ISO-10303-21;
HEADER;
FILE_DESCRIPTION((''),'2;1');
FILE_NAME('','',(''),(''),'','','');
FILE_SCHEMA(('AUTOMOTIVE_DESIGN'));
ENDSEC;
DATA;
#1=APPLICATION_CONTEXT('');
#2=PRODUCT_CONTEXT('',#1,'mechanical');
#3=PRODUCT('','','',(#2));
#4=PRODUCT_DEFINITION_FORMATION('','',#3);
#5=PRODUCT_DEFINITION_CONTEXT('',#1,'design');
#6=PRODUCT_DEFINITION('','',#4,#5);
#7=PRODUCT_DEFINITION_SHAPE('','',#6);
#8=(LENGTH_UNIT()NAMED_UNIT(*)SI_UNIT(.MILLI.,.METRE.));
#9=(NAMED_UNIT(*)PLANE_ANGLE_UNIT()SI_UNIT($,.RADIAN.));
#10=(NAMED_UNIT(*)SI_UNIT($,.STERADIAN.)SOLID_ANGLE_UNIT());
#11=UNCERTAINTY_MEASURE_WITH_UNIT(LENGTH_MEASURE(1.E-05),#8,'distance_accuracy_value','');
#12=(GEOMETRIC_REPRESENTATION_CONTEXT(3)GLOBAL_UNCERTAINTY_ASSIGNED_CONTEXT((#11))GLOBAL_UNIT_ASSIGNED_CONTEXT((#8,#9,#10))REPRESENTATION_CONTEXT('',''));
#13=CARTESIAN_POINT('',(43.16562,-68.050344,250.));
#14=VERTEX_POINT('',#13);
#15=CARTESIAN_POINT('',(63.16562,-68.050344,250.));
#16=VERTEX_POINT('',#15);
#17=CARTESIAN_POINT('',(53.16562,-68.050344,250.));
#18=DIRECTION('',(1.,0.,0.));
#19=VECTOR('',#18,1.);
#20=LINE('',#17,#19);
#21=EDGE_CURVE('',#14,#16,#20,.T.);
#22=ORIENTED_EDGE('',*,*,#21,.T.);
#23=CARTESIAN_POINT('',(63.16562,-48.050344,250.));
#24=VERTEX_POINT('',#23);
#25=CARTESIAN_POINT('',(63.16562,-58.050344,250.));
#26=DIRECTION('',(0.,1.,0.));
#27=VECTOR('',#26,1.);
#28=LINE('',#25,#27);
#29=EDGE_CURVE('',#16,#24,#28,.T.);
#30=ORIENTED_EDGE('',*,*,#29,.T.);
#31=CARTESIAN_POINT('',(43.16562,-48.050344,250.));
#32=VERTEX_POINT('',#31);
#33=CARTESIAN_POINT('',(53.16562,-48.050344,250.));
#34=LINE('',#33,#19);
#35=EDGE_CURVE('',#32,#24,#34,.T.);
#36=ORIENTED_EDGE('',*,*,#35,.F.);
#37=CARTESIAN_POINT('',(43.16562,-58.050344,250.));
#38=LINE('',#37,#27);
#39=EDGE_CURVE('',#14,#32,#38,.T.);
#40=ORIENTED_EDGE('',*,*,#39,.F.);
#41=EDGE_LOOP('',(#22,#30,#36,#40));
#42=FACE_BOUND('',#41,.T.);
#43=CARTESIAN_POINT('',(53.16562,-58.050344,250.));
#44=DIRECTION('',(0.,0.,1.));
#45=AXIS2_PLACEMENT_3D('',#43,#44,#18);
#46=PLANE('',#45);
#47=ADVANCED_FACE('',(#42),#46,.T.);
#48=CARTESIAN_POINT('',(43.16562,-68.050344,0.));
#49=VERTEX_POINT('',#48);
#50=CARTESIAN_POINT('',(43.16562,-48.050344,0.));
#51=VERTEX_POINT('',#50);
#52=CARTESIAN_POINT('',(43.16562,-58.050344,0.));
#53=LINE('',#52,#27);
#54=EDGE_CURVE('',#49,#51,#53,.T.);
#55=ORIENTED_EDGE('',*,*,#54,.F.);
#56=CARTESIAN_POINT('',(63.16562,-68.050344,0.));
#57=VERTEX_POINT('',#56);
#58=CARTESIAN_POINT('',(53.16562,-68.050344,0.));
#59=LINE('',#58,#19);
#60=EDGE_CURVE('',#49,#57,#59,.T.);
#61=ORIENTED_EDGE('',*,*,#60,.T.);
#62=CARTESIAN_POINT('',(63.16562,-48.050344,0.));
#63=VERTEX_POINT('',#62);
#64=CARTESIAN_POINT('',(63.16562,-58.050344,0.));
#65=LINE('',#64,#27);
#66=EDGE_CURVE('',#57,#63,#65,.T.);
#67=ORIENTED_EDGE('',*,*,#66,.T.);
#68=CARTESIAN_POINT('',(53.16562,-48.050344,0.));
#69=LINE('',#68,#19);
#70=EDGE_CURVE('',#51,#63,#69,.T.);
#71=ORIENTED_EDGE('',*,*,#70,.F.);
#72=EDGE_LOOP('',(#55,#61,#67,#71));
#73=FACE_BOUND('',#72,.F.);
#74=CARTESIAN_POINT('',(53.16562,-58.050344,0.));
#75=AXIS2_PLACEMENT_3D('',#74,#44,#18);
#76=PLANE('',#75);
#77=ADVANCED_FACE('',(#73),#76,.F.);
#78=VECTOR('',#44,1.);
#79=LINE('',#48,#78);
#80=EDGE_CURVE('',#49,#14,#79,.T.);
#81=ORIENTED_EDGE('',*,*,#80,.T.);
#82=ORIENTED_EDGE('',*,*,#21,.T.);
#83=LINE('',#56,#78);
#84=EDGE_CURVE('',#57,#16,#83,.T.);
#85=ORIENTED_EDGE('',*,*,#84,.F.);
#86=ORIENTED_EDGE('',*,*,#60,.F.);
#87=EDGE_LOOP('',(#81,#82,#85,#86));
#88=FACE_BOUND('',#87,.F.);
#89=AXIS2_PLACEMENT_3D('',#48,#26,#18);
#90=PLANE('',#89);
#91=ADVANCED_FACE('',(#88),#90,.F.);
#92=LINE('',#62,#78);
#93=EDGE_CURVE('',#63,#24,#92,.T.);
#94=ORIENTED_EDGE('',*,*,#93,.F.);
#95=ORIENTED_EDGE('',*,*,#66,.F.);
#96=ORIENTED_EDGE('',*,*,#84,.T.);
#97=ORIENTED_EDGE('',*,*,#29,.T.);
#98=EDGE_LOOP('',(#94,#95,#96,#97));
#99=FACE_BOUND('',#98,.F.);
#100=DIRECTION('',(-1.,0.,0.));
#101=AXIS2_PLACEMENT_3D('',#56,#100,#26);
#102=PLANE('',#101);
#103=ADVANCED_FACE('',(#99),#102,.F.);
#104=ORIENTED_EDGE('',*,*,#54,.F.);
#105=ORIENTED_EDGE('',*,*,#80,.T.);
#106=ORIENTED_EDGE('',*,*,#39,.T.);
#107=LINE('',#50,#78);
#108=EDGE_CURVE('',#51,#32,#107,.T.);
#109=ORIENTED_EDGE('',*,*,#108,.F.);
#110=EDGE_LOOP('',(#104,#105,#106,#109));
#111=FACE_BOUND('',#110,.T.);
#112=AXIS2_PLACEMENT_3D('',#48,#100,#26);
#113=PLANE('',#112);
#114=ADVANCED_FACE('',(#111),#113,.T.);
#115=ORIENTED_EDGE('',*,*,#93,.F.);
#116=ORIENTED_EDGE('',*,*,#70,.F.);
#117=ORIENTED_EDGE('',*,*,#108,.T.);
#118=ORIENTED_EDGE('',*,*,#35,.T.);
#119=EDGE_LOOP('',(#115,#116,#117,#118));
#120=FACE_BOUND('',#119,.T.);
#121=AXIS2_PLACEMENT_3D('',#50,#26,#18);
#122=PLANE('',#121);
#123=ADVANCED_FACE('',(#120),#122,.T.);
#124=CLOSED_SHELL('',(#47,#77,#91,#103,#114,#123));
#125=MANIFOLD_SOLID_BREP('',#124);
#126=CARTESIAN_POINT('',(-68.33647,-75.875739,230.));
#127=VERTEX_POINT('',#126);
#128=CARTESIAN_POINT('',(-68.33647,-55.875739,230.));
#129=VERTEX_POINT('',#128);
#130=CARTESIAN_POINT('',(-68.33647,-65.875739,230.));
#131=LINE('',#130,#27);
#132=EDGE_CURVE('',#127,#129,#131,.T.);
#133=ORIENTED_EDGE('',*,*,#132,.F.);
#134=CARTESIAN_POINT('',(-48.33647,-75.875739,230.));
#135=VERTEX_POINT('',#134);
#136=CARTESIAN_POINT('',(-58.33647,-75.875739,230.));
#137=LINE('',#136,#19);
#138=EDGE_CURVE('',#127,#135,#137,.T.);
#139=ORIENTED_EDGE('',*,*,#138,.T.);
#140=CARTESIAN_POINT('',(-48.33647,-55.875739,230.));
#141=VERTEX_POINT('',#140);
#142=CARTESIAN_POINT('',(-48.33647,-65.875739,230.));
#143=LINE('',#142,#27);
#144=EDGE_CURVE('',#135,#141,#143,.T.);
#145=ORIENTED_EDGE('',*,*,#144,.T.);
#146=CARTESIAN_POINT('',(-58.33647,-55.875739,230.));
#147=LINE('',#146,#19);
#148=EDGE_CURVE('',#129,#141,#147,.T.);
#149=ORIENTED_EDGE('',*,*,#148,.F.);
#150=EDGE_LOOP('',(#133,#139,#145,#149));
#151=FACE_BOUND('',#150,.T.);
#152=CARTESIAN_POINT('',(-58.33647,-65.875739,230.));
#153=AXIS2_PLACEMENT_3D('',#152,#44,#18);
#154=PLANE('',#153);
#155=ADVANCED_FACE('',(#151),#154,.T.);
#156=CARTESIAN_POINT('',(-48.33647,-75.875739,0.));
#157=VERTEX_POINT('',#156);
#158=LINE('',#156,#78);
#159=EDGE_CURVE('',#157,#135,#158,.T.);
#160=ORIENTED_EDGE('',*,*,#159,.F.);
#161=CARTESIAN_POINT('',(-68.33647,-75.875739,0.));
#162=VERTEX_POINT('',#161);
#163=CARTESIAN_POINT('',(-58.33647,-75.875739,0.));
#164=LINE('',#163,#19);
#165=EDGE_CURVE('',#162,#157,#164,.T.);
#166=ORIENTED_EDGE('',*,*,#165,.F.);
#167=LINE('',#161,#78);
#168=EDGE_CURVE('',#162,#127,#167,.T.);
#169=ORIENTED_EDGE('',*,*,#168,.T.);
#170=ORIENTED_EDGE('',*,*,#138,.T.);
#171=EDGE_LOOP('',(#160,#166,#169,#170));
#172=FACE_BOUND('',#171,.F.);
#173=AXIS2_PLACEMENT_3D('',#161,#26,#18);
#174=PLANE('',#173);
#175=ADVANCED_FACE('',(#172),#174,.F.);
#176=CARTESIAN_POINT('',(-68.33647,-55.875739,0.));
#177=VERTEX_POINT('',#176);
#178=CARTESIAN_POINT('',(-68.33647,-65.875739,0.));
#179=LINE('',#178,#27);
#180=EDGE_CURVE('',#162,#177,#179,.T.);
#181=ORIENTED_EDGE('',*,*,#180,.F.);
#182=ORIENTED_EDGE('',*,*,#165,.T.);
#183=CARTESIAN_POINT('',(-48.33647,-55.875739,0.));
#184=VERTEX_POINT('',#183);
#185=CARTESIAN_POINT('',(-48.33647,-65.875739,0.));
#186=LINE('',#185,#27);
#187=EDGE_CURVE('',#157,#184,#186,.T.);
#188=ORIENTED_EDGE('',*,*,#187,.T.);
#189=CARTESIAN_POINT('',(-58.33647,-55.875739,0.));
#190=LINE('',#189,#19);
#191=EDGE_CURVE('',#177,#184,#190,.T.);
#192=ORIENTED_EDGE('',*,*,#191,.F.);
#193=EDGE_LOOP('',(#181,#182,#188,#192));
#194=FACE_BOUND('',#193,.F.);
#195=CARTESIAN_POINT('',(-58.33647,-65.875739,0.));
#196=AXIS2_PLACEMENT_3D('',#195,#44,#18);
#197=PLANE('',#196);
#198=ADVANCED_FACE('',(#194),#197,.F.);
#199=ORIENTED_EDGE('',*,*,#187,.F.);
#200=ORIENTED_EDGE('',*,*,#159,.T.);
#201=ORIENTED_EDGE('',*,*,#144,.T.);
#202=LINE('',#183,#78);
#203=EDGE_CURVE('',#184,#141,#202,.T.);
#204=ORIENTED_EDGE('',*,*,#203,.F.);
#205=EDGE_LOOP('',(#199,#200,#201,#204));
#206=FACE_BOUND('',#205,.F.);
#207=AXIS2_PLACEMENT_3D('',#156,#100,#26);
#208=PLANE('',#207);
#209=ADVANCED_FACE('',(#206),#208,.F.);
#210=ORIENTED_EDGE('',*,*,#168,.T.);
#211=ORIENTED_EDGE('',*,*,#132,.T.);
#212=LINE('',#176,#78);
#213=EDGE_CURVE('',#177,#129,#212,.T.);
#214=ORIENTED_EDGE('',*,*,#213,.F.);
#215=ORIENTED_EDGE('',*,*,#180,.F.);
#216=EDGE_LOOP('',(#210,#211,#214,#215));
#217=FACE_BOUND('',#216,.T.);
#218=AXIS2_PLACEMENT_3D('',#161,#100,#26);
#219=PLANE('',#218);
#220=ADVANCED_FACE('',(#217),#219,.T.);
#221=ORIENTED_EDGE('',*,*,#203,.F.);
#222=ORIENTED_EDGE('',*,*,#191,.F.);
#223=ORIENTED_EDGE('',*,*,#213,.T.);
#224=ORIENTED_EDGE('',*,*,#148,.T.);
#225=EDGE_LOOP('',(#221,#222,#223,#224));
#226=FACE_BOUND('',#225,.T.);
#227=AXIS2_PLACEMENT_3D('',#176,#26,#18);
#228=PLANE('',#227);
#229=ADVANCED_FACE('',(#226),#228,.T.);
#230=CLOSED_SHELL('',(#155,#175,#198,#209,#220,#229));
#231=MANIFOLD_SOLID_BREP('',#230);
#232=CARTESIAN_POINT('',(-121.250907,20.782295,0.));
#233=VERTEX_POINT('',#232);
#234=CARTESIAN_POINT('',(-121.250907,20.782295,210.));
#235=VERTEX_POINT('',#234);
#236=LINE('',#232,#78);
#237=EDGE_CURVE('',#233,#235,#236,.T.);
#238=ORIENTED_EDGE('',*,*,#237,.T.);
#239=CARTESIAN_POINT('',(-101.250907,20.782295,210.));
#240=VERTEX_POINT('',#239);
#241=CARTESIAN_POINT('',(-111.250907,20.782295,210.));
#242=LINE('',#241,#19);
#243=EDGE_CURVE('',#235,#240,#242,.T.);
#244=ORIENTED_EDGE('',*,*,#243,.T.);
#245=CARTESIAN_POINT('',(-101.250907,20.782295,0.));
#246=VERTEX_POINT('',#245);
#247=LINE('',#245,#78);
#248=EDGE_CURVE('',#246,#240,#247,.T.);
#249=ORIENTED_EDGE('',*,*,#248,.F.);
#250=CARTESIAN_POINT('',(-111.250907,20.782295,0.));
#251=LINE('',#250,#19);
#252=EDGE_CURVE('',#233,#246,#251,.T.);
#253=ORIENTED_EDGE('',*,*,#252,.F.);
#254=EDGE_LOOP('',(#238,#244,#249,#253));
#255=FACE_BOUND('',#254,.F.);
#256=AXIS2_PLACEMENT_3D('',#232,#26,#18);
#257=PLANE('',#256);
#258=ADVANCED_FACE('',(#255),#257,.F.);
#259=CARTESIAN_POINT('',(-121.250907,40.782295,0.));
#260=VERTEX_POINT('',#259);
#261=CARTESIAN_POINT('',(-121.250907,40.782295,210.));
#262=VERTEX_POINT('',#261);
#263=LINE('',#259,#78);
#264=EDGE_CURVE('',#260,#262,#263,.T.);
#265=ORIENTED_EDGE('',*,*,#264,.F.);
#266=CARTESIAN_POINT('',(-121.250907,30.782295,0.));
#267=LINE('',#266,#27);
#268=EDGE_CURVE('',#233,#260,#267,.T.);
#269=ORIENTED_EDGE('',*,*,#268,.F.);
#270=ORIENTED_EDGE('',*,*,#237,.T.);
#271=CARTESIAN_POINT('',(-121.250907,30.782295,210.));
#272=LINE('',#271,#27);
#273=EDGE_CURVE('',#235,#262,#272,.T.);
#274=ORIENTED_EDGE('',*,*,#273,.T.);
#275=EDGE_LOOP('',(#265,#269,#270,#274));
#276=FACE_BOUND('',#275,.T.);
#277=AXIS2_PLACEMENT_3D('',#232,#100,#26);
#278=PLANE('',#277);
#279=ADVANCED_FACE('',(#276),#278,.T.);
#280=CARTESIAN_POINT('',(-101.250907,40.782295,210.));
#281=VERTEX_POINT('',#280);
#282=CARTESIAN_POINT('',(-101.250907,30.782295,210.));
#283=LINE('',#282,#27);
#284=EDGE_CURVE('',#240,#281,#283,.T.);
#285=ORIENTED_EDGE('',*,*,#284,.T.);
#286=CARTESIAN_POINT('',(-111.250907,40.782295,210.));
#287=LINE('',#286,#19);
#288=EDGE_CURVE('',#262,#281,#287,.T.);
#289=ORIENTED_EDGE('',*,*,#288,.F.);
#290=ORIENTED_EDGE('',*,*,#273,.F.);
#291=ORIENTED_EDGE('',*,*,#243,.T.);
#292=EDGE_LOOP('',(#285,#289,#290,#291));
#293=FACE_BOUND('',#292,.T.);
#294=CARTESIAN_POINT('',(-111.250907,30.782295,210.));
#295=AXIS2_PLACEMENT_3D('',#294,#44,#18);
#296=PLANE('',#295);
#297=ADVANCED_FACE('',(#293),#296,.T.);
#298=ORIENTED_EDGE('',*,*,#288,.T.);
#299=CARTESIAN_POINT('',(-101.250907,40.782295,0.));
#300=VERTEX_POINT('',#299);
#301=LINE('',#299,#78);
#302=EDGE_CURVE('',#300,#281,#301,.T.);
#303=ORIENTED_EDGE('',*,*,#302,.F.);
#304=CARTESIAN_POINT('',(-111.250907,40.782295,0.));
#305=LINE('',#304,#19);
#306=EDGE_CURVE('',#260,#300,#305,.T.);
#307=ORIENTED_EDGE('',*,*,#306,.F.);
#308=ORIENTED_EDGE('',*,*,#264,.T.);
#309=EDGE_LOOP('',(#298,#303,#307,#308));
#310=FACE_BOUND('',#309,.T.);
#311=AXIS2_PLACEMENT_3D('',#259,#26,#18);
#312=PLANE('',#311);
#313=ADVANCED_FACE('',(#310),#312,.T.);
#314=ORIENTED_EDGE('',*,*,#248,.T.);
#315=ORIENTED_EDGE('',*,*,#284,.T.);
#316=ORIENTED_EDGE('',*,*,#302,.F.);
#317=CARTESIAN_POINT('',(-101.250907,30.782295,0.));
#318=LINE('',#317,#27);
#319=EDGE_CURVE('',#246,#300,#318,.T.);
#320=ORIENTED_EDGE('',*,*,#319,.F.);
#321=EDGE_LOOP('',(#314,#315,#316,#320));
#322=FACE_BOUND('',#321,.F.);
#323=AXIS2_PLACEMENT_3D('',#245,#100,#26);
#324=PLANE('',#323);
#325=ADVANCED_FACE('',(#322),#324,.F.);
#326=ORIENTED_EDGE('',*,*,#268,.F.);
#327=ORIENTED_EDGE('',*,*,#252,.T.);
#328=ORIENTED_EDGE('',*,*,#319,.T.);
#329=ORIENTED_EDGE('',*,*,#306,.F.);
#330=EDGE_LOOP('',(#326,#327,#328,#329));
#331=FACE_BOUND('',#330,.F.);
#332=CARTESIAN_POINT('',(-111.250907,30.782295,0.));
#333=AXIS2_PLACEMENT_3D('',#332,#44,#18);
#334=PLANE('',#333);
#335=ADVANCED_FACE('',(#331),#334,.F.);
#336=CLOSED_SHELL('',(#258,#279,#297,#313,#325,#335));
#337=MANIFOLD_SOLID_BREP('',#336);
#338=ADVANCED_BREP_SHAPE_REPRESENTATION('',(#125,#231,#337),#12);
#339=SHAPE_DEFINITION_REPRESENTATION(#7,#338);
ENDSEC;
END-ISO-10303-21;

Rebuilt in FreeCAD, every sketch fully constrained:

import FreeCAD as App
import Part
import Sketcher
Q = App.Units.Quantity

doc = App.newDocument("Part")
body = doc.addObject("PartDesign::Body", "Body")

# Sketch on XY plane
sketch1 = doc.addObject("Sketcher::SketchObject", "Sketch")
body.addObject(sketch1)
sketch1.AttachmentSupport = (doc.XY_Plane, [""])
sketch1.MapMode = "FlatFace"
sketch1.addGeometry([
    Part.LineSegment(App.Vector(43, -48, 0), App.Vector(43, -68, 0)),
    Part.LineSegment(App.Vector(43, -68, 0), App.Vector(63, -68, 0)),
    Part.LineSegment(App.Vector(63, -68, 0), App.Vector(63, -48, 0)),
    Part.LineSegment(App.Vector(63, -48, 0), App.Vector(43, -48, 0)),
], False)
sketch1.addConstraint([
    Sketcher.Constraint("Coincident", 0, 2, 1, 1),
    Sketcher.Constraint("Coincident", 1, 2, 2, 1),
    Sketcher.Constraint("Coincident", 2, 2, 3, 1),
    Sketcher.Constraint("Coincident", 3, 2, 0, 1),
    Sketcher.Constraint("Vertical", 0),
    Sketcher.Constraint("Horizontal", 1),
    Sketcher.Constraint("Vertical", 2),
    Sketcher.Constraint("Horizontal", 3),
    Sketcher.Constraint("Equal", 3, 0),
    Sketcher.Constraint("DistanceX", 1, 1, 1, 2, Q("20 mm")),
    Sketcher.Constraint("DistanceX", -1, 1, 0, 2, Q("43.16562 mm")),
    Sketcher.Constraint("DistanceY", 0, 2, -1, 1, Q("68.050344 mm")),
])
pad1 = doc.addObject("PartDesign::Pad", "Pad")
body.addObject(pad1)
pad1.Profile = sketch1
pad1.Length = 250
body2 = doc.addObject("PartDesign::Body", "Body001")

# Sketch on XY plane
sketch2 = doc.addObject("Sketcher::SketchObject", "Sketch001")
body2.addObject(sketch2)
sketch2.AttachmentSupport = (doc.getObject("XY_Plane001"), [""])
sketch2.MapMode = "FlatFace"
sketch2.addGeometry([
    Part.LineSegment(App.Vector(-68, -56, 0), App.Vector(-68, -76, 0)),
    Part.LineSegment(App.Vector(-68, -76, 0), App.Vector(-48, -76, 0)),
    Part.LineSegment(App.Vector(-48, -76, 0), App.Vector(-48, -56, 0)),
    Part.LineSegment(App.Vector(-48, -56, 0), App.Vector(-68, -56, 0)),
], False)
sketch2.addConstraint([
    Sketcher.Constraint("Coincident", 0, 2, 1, 1),
    Sketcher.Constraint("Coincident", 1, 2, 2, 1),
    Sketcher.Constraint("Coincident", 2, 2, 3, 1),
    Sketcher.Constraint("Coincident", 3, 2, 0, 1),
    Sketcher.Constraint("Vertical", 0),
    Sketcher.Constraint("Horizontal", 1),
    Sketcher.Constraint("Vertical", 2),
    Sketcher.Constraint("Horizontal", 3),
    Sketcher.Constraint("Equal", 3, 0),
    Sketcher.Constraint("DistanceX", 1, 1, 1, 2, Q("20 mm")),
    Sketcher.Constraint("DistanceX", 0, 2, -1, 1, Q("68.33647 mm")),
    Sketcher.Constraint("DistanceY", 0, 2, -1, 1, Q("75.875739 mm")),
])
pad2 = doc.addObject("PartDesign::Pad", "Pad001")
body2.addObject(pad2)
pad2.Profile = sketch2
pad2.Length = 230
body3 = doc.addObject("PartDesign::Body", "Body002")

# Sketch on XY plane
sketch3 = doc.addObject("Sketcher::SketchObject", "Sketch002")
body3.addObject(sketch3)
sketch3.AttachmentSupport = (doc.getObject("XY_Plane002"), [""])
sketch3.MapMode = "FlatFace"
sketch3.addGeometry([
    Part.LineSegment(App.Vector(-121, 41, 0), App.Vector(-121, 21, 0)),
    Part.LineSegment(App.Vector(-121, 21, 0), App.Vector(-101, 21, 0)),
    Part.LineSegment(App.Vector(-101, 21, 0), App.Vector(-101, 41, 0)),
    Part.LineSegment(App.Vector(-101, 41, 0), App.Vector(-121, 41, 0)),
], False)
sketch3.addConstraint([
    Sketcher.Constraint("Coincident", 0, 2, 1, 1),
    Sketcher.Constraint("Coincident", 1, 2, 2, 1),
    Sketcher.Constraint("Coincident", 2, 2, 3, 1),
    Sketcher.Constraint("Coincident", 3, 2, 0, 1),
    Sketcher.Constraint("Vertical", 0),
    Sketcher.Constraint("Horizontal", 1),
    Sketcher.Constraint("Vertical", 2),
    Sketcher.Constraint("Horizontal", 3),
    Sketcher.Constraint("Equal", 3, 0),
    Sketcher.Constraint("DistanceX", 1, 1, 1, 2, Q("20 mm")),
    Sketcher.Constraint("DistanceX", 0, 2, -1, 1, Q("121.250907 mm")),
    Sketcher.Constraint("DistanceY", -1, 1, 0, 2, Q("20.782295 mm")),
])
pad3 = doc.addObject("PartDesign::Pad", "Pad002")
body3.addObject(pad3)
pad3.Profile = sketch3
pad3.Length = 210

doc.recompute()
